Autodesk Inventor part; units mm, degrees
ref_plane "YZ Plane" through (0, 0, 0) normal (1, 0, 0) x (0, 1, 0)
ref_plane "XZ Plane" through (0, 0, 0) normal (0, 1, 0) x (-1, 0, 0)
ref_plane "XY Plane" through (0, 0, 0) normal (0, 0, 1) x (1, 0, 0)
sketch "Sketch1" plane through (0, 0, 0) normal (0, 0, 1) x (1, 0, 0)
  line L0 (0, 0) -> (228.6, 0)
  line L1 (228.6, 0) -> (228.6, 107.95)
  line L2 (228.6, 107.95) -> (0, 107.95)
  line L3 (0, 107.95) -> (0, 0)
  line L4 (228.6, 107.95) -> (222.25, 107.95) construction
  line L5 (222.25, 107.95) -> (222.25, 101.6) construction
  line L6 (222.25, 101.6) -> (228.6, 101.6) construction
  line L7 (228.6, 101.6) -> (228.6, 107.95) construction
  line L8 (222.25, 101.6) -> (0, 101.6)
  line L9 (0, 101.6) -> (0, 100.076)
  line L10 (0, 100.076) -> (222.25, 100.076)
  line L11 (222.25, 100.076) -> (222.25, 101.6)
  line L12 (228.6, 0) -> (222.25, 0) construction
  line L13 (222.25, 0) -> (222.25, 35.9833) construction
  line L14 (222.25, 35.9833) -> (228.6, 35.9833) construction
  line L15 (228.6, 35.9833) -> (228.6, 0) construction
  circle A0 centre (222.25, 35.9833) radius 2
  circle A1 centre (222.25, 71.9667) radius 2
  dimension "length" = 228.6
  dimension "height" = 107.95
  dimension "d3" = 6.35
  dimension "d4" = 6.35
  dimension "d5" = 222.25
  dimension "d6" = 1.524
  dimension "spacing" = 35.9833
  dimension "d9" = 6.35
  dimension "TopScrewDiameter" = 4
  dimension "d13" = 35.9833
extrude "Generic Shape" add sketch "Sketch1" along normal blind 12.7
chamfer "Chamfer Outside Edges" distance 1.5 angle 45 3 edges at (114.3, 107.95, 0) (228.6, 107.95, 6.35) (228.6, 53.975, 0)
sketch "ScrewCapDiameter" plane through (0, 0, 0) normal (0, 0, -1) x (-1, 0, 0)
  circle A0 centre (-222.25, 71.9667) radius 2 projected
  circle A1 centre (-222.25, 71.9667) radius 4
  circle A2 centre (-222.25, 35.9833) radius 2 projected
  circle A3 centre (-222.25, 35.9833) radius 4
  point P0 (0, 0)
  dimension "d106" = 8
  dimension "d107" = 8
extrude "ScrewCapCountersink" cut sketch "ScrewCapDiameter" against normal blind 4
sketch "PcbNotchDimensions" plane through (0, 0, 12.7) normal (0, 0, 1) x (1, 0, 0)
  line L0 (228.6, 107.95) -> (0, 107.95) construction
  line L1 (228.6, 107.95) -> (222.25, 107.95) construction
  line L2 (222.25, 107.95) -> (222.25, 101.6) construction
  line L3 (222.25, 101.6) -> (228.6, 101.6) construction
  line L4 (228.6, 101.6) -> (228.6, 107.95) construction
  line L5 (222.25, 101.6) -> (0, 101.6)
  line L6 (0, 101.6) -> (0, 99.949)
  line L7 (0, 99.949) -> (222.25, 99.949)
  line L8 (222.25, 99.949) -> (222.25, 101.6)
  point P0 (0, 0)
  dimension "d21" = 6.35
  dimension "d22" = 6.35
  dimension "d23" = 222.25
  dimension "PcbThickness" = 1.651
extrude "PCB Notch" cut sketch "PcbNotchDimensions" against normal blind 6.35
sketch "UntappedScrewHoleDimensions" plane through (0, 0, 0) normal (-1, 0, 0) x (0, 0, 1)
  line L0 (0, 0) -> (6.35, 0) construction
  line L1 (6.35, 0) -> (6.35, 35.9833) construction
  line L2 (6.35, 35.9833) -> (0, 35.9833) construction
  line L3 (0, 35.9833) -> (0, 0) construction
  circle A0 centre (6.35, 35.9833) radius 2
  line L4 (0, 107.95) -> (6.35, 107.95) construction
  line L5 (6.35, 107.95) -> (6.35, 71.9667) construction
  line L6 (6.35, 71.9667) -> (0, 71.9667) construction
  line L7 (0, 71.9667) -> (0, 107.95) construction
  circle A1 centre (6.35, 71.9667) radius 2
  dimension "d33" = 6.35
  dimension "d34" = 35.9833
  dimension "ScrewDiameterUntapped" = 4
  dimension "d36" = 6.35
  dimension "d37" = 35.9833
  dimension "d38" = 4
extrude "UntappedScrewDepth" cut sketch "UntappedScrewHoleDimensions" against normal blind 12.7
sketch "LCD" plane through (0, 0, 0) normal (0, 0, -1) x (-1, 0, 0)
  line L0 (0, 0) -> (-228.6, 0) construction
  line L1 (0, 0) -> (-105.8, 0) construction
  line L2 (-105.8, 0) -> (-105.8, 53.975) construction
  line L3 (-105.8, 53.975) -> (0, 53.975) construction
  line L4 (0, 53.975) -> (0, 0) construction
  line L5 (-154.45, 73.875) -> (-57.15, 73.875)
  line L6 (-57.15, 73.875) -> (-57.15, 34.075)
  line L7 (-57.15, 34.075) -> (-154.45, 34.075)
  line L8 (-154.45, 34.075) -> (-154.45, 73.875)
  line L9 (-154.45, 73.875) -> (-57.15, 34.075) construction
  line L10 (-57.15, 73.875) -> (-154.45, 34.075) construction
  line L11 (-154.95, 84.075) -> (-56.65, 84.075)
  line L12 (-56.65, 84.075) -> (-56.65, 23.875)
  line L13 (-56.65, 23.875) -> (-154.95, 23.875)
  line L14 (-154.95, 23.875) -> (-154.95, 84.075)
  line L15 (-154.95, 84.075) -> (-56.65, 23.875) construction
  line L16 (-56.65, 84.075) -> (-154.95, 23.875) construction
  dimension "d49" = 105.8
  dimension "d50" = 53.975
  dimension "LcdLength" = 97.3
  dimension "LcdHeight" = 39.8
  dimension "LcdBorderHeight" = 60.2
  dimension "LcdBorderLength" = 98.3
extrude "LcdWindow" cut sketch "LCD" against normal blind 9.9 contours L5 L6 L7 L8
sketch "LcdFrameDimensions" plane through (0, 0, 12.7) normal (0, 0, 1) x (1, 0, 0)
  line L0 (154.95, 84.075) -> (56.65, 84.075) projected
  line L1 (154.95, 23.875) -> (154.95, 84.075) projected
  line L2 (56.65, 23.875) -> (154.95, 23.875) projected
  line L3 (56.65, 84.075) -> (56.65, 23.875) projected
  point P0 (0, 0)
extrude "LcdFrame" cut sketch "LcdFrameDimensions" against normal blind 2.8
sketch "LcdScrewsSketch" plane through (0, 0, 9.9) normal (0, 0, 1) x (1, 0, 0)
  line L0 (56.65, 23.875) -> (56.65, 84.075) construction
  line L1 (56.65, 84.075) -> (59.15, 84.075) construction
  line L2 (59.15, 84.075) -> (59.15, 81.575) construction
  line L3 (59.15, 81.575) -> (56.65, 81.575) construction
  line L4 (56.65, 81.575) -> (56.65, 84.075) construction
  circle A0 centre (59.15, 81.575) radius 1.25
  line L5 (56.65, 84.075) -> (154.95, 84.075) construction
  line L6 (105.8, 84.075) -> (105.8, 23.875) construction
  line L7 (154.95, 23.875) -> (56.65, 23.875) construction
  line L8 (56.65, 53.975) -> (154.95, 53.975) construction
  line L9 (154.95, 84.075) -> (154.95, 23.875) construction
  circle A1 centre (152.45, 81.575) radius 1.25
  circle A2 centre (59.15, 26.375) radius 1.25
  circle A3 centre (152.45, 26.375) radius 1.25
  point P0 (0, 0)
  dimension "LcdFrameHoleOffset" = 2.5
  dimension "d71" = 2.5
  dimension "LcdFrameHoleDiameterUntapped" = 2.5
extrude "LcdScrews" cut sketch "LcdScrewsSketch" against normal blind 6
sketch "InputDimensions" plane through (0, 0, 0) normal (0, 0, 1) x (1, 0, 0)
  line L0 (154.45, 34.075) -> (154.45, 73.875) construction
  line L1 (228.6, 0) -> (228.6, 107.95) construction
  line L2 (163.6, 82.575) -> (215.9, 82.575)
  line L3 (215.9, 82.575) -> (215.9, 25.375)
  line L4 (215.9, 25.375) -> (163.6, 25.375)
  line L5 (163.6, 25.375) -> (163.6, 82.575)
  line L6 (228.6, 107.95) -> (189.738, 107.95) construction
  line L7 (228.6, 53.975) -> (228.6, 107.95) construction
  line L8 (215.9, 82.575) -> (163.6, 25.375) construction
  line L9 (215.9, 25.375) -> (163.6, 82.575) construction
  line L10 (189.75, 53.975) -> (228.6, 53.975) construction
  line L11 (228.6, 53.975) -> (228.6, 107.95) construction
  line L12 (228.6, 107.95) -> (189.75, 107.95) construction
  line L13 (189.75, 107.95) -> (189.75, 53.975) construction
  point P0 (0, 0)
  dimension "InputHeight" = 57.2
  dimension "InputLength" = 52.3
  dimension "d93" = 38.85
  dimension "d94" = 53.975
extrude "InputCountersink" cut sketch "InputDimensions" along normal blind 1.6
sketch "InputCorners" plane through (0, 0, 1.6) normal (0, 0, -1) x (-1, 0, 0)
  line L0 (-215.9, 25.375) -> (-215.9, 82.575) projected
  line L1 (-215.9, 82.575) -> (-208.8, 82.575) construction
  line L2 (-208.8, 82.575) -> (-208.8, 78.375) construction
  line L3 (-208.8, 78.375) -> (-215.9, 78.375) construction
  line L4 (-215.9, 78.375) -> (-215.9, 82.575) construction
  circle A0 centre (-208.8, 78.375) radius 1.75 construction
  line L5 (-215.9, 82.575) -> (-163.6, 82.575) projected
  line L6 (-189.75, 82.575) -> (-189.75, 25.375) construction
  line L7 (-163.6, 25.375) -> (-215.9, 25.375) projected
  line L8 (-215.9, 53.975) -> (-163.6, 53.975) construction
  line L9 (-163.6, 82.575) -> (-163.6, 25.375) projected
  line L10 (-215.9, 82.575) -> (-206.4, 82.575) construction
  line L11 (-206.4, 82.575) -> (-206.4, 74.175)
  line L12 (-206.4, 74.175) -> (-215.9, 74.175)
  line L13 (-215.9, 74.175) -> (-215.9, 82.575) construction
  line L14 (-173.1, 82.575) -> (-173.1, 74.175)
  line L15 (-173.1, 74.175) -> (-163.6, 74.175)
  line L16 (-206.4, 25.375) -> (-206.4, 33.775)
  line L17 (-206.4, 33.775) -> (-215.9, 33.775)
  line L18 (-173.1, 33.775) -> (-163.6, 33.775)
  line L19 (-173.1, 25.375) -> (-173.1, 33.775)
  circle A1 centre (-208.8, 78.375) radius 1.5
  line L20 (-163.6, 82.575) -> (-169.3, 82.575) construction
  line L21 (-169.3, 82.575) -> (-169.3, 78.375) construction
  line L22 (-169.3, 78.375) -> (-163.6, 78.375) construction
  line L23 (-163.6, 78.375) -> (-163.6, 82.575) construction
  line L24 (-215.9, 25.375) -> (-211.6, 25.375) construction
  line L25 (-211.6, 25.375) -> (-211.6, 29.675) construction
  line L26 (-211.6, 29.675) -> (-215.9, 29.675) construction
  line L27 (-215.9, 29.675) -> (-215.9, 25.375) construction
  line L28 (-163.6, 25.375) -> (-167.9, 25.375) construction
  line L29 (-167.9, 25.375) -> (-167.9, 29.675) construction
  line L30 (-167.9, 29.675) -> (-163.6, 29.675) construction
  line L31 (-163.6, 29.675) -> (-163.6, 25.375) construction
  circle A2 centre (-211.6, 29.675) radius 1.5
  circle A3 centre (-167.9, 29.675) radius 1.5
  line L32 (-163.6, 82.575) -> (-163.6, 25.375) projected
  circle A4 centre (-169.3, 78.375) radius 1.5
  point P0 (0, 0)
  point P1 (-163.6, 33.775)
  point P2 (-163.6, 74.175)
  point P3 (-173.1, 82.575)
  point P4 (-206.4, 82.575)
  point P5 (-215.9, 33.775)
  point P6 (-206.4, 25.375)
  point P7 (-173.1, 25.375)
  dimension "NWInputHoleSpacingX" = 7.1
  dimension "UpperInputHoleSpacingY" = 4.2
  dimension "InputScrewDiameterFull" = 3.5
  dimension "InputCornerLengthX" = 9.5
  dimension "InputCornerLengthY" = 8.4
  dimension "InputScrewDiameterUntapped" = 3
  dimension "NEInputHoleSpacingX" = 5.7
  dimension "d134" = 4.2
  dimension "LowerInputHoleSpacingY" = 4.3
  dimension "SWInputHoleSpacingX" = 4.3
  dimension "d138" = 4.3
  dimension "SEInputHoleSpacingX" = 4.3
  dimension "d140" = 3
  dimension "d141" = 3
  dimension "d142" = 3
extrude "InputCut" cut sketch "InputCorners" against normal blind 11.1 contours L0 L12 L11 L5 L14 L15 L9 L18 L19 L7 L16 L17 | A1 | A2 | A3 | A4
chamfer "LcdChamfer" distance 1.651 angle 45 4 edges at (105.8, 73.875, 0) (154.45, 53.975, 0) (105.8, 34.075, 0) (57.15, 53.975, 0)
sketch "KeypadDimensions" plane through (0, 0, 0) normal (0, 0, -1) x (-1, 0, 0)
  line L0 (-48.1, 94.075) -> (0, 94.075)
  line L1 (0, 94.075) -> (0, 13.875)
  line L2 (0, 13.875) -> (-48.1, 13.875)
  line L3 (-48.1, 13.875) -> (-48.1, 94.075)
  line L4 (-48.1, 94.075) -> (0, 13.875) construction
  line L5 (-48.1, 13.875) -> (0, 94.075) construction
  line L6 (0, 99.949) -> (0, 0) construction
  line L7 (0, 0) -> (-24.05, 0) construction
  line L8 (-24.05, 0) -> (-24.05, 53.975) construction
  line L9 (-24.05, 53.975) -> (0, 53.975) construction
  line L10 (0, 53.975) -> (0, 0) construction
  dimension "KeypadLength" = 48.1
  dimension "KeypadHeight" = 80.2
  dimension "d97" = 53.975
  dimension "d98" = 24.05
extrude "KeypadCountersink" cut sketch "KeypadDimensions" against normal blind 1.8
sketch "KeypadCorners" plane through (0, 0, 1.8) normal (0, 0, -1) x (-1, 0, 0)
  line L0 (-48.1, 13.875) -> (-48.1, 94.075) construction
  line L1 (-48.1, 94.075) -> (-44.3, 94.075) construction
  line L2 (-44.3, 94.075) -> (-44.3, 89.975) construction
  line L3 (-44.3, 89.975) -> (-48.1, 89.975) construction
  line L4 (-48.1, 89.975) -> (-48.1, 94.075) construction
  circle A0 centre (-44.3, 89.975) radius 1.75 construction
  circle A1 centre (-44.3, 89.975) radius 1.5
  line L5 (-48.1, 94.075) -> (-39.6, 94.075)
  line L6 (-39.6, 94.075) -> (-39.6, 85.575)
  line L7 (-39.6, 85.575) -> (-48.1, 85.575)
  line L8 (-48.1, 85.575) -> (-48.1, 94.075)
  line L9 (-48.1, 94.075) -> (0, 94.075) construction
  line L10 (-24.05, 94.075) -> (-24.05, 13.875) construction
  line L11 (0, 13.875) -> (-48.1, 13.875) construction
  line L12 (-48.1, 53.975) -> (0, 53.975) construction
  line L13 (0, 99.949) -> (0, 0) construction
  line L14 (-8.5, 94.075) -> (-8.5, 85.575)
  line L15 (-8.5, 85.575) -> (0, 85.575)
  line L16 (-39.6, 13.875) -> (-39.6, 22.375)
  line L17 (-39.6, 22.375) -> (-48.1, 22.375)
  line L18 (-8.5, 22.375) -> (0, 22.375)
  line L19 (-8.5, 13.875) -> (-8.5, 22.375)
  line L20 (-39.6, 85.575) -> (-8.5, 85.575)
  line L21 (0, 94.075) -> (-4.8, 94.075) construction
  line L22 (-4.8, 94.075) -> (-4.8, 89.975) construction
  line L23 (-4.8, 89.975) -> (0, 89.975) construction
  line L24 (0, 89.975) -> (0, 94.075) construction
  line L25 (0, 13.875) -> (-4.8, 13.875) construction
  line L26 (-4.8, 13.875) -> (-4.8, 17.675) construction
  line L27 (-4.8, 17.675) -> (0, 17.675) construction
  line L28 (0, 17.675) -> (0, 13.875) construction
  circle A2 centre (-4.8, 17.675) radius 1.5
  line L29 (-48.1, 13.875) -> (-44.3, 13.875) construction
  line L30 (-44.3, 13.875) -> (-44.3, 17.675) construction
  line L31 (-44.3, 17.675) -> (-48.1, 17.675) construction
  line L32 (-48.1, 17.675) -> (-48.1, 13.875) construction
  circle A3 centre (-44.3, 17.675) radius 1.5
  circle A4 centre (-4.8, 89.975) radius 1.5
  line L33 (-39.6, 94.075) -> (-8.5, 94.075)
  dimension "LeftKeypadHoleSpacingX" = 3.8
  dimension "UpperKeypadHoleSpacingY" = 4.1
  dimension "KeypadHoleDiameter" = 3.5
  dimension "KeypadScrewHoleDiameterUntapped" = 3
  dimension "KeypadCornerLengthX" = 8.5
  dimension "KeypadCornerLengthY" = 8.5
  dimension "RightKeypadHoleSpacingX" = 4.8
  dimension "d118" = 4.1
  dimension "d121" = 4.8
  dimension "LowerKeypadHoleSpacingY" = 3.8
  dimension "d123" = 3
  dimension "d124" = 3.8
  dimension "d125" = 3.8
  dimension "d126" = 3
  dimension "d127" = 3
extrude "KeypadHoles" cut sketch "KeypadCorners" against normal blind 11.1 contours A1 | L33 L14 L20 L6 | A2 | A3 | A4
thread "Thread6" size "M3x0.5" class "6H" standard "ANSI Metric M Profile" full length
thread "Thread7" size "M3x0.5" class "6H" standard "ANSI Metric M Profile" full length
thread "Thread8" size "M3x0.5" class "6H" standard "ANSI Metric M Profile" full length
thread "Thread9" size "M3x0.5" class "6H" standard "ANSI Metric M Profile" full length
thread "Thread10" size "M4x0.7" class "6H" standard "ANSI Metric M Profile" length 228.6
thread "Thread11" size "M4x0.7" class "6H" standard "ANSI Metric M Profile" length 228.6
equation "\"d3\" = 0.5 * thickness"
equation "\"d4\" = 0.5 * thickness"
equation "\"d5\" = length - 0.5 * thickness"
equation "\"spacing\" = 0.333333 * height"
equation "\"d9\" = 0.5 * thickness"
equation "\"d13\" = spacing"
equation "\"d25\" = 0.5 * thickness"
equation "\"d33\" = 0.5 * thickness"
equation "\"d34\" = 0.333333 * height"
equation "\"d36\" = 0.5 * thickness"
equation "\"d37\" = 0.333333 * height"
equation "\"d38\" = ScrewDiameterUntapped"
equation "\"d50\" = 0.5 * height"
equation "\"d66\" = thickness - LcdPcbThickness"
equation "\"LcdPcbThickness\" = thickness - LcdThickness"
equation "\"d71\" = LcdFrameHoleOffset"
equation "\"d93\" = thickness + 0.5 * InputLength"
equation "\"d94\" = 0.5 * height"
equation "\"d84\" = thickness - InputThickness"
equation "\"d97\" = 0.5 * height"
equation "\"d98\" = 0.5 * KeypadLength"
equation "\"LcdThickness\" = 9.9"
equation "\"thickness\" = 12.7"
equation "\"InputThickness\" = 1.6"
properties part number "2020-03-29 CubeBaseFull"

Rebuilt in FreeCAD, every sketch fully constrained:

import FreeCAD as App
import Part
import Sketcher
from FreeCAD import Vector
Q = App.Units.Quantity


def edges_at(feature, points):
    """Names of the edges that pass closest to the given points."""
    edges = feature.Shape.Edges
    near = lambda p: min(range(len(edges)), key=lambda i: edges[i].distToShape(Part.Vertex(*p))[0])
    return sorted({f"Edge{near(p) + 1}" for p in points})


def add_polygon(sketch, points):
    """Adds a closed chain of lines whose ends are joined by coincident constraints."""
    first, n = sketch.GeometryCount, len(points)
    for a, b in zip(points, points[1:] + points[:1]):
        sketch.addGeometry(Part.LineSegment(App.Vector(*a, 0), App.Vector(*b, 0)), False)
    for i in range(n):
        sketch.addConstraint(Sketcher.Constraint("Coincident", first + i, 2, first + (i + 1) % n, 1))

doc = App.newDocument("Part")
params = doc.addObject("Spreadsheet::Sheet", "Params")
for row, (alias, value) in enumerate([
    ("sketch1_diameter", "4 mm"),
    ("sketch1_width", "228.6 mm"),
    ("sketch1_height", "107.95 mm"),
    ("pad1_length", "12.7 mm"),
    ("chamfer_size", "1.5 mm"),
    ("sketch2_diameter", "8 mm"),
    ("sketch2_diameter2", "4 mm"),
    ("pocket1_length", "4 mm"),
    ("sketch3_width", "222.25 mm"),
    ("pocket2_length", "6.35 mm"),
    ("sketch4_diameter", "4 mm"),
    ("pocket3_length", "12.7 mm"),
    ("sketch5_width", "97.3 mm"),
    ("sketch5_height", "39.8 mm"),
    ("pocket4_length", "9.9 mm"),
    ("sketch6_width", "98.3 mm"),
    ("sketch6_height", "60.2 mm"),
    ("pocket5_length", "2.8 mm"),
    ("sketch7_diameter", "2.5 mm"),
    ("pocket6_length", "6 mm"),
    ("sketch8_width", "52.3 mm"),
    ("sketch8_height", "57.2 mm"),
    ("pocket7_length", "1.6 mm"),
    ("sketch9_diameter", "3 mm"),
    ("sketch9_width", "9.5 mm"),
    ("sketch9_height", "8.4 mm"),
    ("sketch9_width2", "33.3 mm"),
    ("sketch9_height2", "40.4 mm"),
    ("pocket8_length", "11.1 mm"),
    ("chamfer2_size", "1.651 mm"),
    ("sketch10_width", "48.1 mm"),
    ("sketch10_height", "80.2 mm"),
    ("pocket9_length", "1.8 mm"),
    ("sketch11_diameter", "3 mm"),
    ("sketch11_height", "8.5 mm"),
    ("sketch11_width", "31.1 mm"),
    ("pocket10_length", "11.1 mm"),
], start=1):
    params.set(f"A{row}", alias)
    params.set(f"B{row}", "=" + value)
    params.setAlias(f"B{row}", alias)

body = doc.addObject("PartDesign::Body", "Body")

# Sketch on XY plane
sketch1 = body.newObject("Sketcher::SketchObject", "Sketch")
sketch1.AttachmentSupport = (doc.getObject("XY_Plane"), [""])
sketch1.MapMode = "FlatFace"
add_polygon(sketch1, [(0, 0), (228.6, 0), (228.6, 108), (0, 108)])  # lines 0-3
sketch1.addGeometry(Part.Circle(Vector(222.2, 36, 0), Vector(0, 0, 1), 2), False)  # 4
sketch1.addGeometry(Part.Circle(Vector(222.2, 72, 0), Vector(0, 0, 1), 2), False)  # 5
sketch1.addConstraint(Sketcher.Constraint("Horizontal", 0))
sketch1.addConstraint(Sketcher.Constraint("Vertical", 1))
sketch1.addConstraint(Sketcher.Constraint("Horizontal", 2))
sketch1.addConstraint(Sketcher.Constraint("Vertical", 3))
sketch1.addConstraint(Sketcher.Constraint("Coincident", 3, 2, -1, 1))
sketch1.addConstraint(Sketcher.Constraint("Equal", 4, 5))
sketch1.addConstraint(Sketcher.Constraint("Vertical", 4, 3, 5, 3))
sketch1.addConstraint(Sketcher.Constraint("Diameter", 4, Q("4 mm")))
sketch1.addConstraint(Sketcher.Constraint("DistanceX", 0, 1, 0, 2, Q("228.6 mm")))
sketch1.addConstraint(Sketcher.Constraint("DistanceY", 1, 1, 1, 2, Q("107.95 mm")))
sketch1.addConstraint(Sketcher.Constraint("DistanceX", -1, 1, 4, 3, Q("222.25 mm")))
sketch1.addConstraint(Sketcher.Constraint("DistanceY", -1, 1, 4, 3, Q("35.9833 mm")))
sketch1.addConstraint(Sketcher.Constraint("DistanceY", 4, 3, 5, 3, Q("35.9834 mm")))
sketch1.setExpression("Constraints[11]", "Params.sketch1_diameter")
sketch1.setExpression("Constraints[12]", "Params.sketch1_width")
sketch1.setExpression("Constraints[13]", "Params.sketch1_height")
pad1 = body.newObject("PartDesign::Pad", "Pad")
pad1.Profile = sketch1
pad1.setExpression("Length", "Params.pad1_length")
doc.recompute()

chamfer = body.newObject("PartDesign::Chamfer", "Chamfer")
chamfer.Base = (pad1, edges_at(pad1, [(114.3, 107.95, 0), (228.6, 107.95, 6.35), (228.6, 53.975, 0)]))
chamfer.setExpression("Size", "Params.chamfer_size")

# Sketch on XY plane
sketch2 = body.newObject("Sketcher::SketchObject", "Sketch001")
sketch2.AttachmentSupport = (doc.getObject("XY_Plane"), [""])
sketch2.MapMode = "FlatFace"
sketch2.addGeometry(Part.Circle(Vector(222.2, 72, 0), Vector(0, 0, 1), 4), False)
sketch2.addGeometry(Part.Circle(Vector(222.2, 72, 0), Vector(0, 0, 1), 2), False)
sketch2.addGeometry(Part.Circle(Vector(222.2, 36, 0), Vector(0, 0, 1), 4), False)
sketch2.addGeometry(Part.Circle(Vector(222.2, 36, 0), Vector(0, 0, 1), 2), False)
sketch2.addConstraint(Sketcher.Constraint("Coincident", 1, 3, 0, 3))
sketch2.addConstraint(Sketcher.Constraint("Coincident", 3, 3, 2, 3))
sketch2.addConstraint(Sketcher.Constraint("Equal", 0, 2))
sketch2.addConstraint(Sketcher.Constraint("Equal", 1, 3))
sketch2.addConstraint(Sketcher.Constraint("Vertical", 1, 3, 2, 3))
sketch2.addConstraint(Sketcher.Constraint("Diameter", 0, Q("8 mm")))
sketch2.addConstraint(Sketcher.Constraint("Diameter", 1, Q("4 mm")))
sketch2.addConstraint(Sketcher.Constraint("DistanceX", -1, 1, 0, 3, Q("222.25 mm")))
sketch2.addConstraint(Sketcher.Constraint("DistanceY", -1, 1, 0, 3, Q("71.9667 mm")))
sketch2.addConstraint(Sketcher.Constraint("DistanceY", -1, 1, 2, 3, Q("35.9833 mm")))
sketch2.setExpression("Constraints[5]", "Params.sketch2_diameter")
sketch2.setExpression("Constraints[6]", "Params.sketch2_diameter2")
pocket1 = body.newObject("PartDesign::Pocket", "Pocket")
pocket1.Profile = sketch2
pocket1.setExpression("Length", "Params.pocket1_length")
pocket1.Reversed = True

# Sketch on XY plane
sketch3 = body.newObject("Sketcher::SketchObject", "Sketch002")
sketch3.AttachmentSupport = (doc.getObject("XY_Plane"), [""])
sketch3.MapMode = "FlatFace"
sketch3.AttachmentOffset = App.Placement(Vector(0, 0, 12.7), App.Rotation())
add_polygon(sketch3, [(222.2, 99.9), (222.2, 101.6), (0, 101.6), (0, 99.9)])  # lines 0-3
sketch3.addConstraint(Sketcher.Constraint("Vertical", 0))
sketch3.addConstraint(Sketcher.Constraint("Horizontal", 1))
sketch3.addConstraint(Sketcher.Constraint("Vertical", 2))
sketch3.addConstraint(Sketcher.Constraint("Horizontal", 3))
sketch3.addConstraint(Sketcher.Constraint("PointOnObject", 1, 2, -2))
sketch3.addConstraint(Sketcher.Constraint("DistanceX", 1, 2, 1, 1, Q("222.25 mm")))
sketch3.addConstraint(Sketcher.Constraint("DistanceY", 0, 1, 0, 2, Q("1.651 mm")))
sketch3.addConstraint(Sketcher.Constraint("DistanceY", -1, 1, 0, 2, Q("101.6 mm")))
sketch3.setExpression("Constraints[9]", "Params.sketch3_width")
pocket2 = body.newObject("PartDesign::Pocket", "Pocket001")
pocket2.Profile = sketch3
pocket2.setExpression("Length", "Params.pocket2_length")

# Sketch on YZ plane
sketch4 = body.newObject("Sketcher::SketchObject", "Sketch003")
sketch4.AttachmentSupport = (doc.getObject("YZ_Plane"), [""])
sketch4.MapMode = "FlatFace"
sketch4.addGeometry(Part.Circle(Vector(36, 6.3, 0), Vector(0, 0, 1), 2), False)
sketch4.addGeometry(Part.Circle(Vector(72, 6.3, 0), Vector(0, 0, 1), 2), False)
sketch4.addConstraint(Sketcher.Constraint("Equal", 0, 1))
sketch4.addConstraint(Sketcher.Constraint("Horizontal", 0, 3, 1, 3))
sketch4.addConstraint(Sketcher.Constraint("Diameter", 0, Q("4 mm")))
sketch4.addConstraint(Sketcher.Constraint("DistanceY", -1, 1, 0, 3, Q("6.35 mm")))
sketch4.addConstraint(Sketcher.Constraint("DistanceX", -1, 1, 0, 3, Q("35.9833 mm")))
sketch4.addConstraint(Sketcher.Constraint("DistanceX", 0, 3, 1, 3, Q("35.9834 mm")))
sketch4.setExpression("Constraints[2]", "Params.sketch4_diameter")
pocket3 = body.newObject("PartDesign::Pocket", "Pocket002")
pocket3.Profile = sketch4
pocket3.setExpression("Length", "Params.pocket3_length")
pocket3.Reversed = True

# Sketch on XY plane
sketch5 = body.newObject("Sketcher::SketchObject", "Sketch004")
sketch5.AttachmentSupport = (doc.getObject("XY_Plane"), [""])
sketch5.MapMode = "FlatFace"
add_polygon(sketch5, [(57, 74), (154, 74), (154, 34), (57, 34)])  # lines 0-3
sketch5.addConstraint(Sketcher.Constraint("Horizontal", 0))
sketch5.addConstraint(Sketcher.Constraint("Vertical", 1))
sketch5.addConstraint(Sketcher.Constraint("Horizontal", 2))
sketch5.addConstraint(Sketcher.Constraint("Vertical", 3))
sketch5.addConstraint(Sketcher.Constraint("DistanceX", 0, 1, 0, 2, Q("97.3 mm")))
sketch5.addConstraint(Sketcher.Constraint("DistanceY", 1, 2, 1, 1, Q("39.8 mm")))
sketch5.addConstraint(Sketcher.Constraint("DistanceX", -1, 1, 0, 2, Q("154.45 mm")))
sketch5.addConstraint(Sketcher.Constraint("DistanceY", -1, 1, 0, 2, Q("73.875 mm")))
sketch5.setExpression("Constraints[8]", "Params.sketch5_width")
sketch5.setExpression("Constraints[9]", "Params.sketch5_height")
pocket4 = body.newObject("PartDesign::Pocket", "Pocket003")
pocket4.Profile = sketch5
pocket4.setExpression("Length", "Params.pocket4_length")
pocket4.Reversed = True

# Sketch on XY plane
sketch6 = body.newObject("Sketcher::SketchObject", "Sketch005")
sketch6.AttachmentSupport = (doc.getObject("XY_Plane"), [""])
sketch6.MapMode = "FlatFace"
sketch6.AttachmentOffset = App.Placement(Vector(0, 0, 12.7), App.Rotation())
add_polygon(sketch6, [(155, 24), (155, 84), (57, 84), (57, 24)])  # lines 0-3
sketch6.addConstraint(Sketcher.Constraint("Vertical", 0))
sketch6.addConstraint(Sketcher.Constraint("Horizontal", 1))
sketch6.addConstraint(Sketcher.Constraint("Vertical", 2))
sketch6.addConstraint(Sketcher.Constraint("Horizontal", 3))
sketch6.addConstraint(Sketcher.Constraint("DistanceX", 1, 2, 1, 1, Q("98.3 mm")))
sketch6.addConstraint(Sketcher.Constraint("DistanceY", 0, 1, 0, 2, Q("60.2 mm")))
sketch6.addConstraint(Sketcher.Constraint("DistanceX", -1, 1, 0, 2, Q("154.95 mm")))
sketch6.addConstraint(Sketcher.Constraint("DistanceY", -1, 1, 0, 2, Q("84.075 mm")))
sketch6.setExpression("Constraints[8]", "Params.sketch6_width")
sketch6.setExpression("Constraints[9]", "Params.sketch6_height")
pocket5 = body.newObject("PartDesign::Pocket", "Pocket004")
pocket5.Profile = sketch6
pocket5.setExpression("Length", "Params.pocket5_length")

# Sketch on XY plane
sketch7 = body.newObject("Sketcher::SketchObject", "Sketch006")
sketch7.AttachmentSupport = (doc.getObject("XY_Plane"), [""])
sketch7.MapMode = "FlatFace"
sketch7.AttachmentOffset = App.Placement(Vector(0, 0, 9.9), App.Rotation())
sketch7.addGeometry(Part.Circle(Vector(59.1, 81.6, 0), Vector(0, 0, 1), 1.2), False)
sketch7.addGeometry(Part.Circle(Vector(152.4, 81.6, 0), Vector(0, 0, 1), 1.2), False)
sketch7.addGeometry(Part.Circle(Vector(59.1, 26.4, 0), Vector(0, 0, 1), 1.2), False)
sketch7.addGeometry(Part.Circle(Vector(152.4, 26.4, 0), Vector(0, 0, 1), 1.2), False)
sketch7.addConstraint(Sketcher.Constraint("Equal", 0, 1))
sketch7.addConstraint(Sketcher.Constraint("Equal", 1, 2))
sketch7.addConstraint(Sketcher.Constraint("Equal", 2, 3))
sketch7.addConstraint(Sketcher.Constraint("Horizontal", 0, 3, 1, 3))
sketch7.addConstraint(Sketcher.Constraint("Horizontal", 2, 3, 3, 3))
sketch7.addConstraint(Sketcher.Constraint("Vertical", 0, 3, 2, 3))
sketch7.addConstraint(Sketcher.Constraint("Vertical", 1, 3, 3, 3))
sketch7.addConstraint(Sketcher.Constraint("Diameter", 0, Q("2.5 mm")))
sketch7.addConstraint(Sketcher.Constraint("DistanceX", 0, 3, 1, 3, Q("93.3 mm")))
sketch7.addConstraint(Sketcher.Constraint("DistanceY", 2, 3, 0, 3, Q("55.2 mm")))
sketch7.addConstraint(Sketcher.Constraint("DistanceX", -1, 1, 0, 3, Q("59.15 mm")))
sketch7.addConstraint(Sketcher.Constraint("DistanceY", -1, 1, 0, 3, Q("81.575 mm")))
sketch7.setExpression("Constraints[7]", "Params.sketch7_diameter")
pocket6 = body.newObject("PartDesign::Pocket", "Pocket005")
pocket6.Profile = sketch7
pocket6.setExpression("Length", "Params.pocket6_length")

# Sketch on XY plane
sketch8 = body.newObject("Sketcher::SketchObject", "Sketch007")
sketch8.AttachmentSupport = (doc.getObject("XY_Plane"), [""])
sketch8.MapMode = "FlatFace"
add_polygon(sketch8, [(216, 83), (164, 83), (164, 25), (216, 25)])  # lines 0-3
sketch8.addConstraint(Sketcher.Constraint("Horizontal", 0))
sketch8.addConstraint(Sketcher.Constraint("Vertical", 1))
sketch8.addConstraint(Sketcher.Constraint("Horizontal", 2))
sketch8.addConstraint(Sketcher.Constraint("Vertical", 3))
sketch8.addConstraint(Sketcher.Constraint("DistanceX", 0, 2, 0, 1, Q("52.3 mm")))
sketch8.addConstraint(Sketcher.Constraint("DistanceY", 1, 2, 1, 1, Q("57.2 mm")))
sketch8.addConstraint(Sketcher.Constraint("DistanceX", -1, 1, 0, 2, Q("163.6 mm")))
sketch8.addConstraint(Sketcher.Constraint("DistanceY", -1, 1, 0, 2, Q("82.575 mm")))
sketch8.setExpression("Constraints[8]", "Params.sketch8_width")
sketch8.setExpression("Constraints[9]", "Params.sketch8_height")
pocket7 = body.newObject("PartDesign::Pocket", "Pocket006")
pocket7.Profile = sketch8
pocket7.setExpression("Length", "Params.pocket7_length")
pocket7.Reversed = True

# Sketch on XY plane
sketch9 = body.newObject("Sketcher::SketchObject", "Sketch008")
sketch9.AttachmentSupport = (doc.getObject("XY_Plane"), [""])
sketch9.MapMode = "FlatFace"
sketch9.AttachmentOffset = App.Placement(Vector(0, 0, 1.6), App.Rotation())
add_polygon(sketch9, [(215.9, 74.2), (215.9, 33.8), (206.4, 33.8), (206.4, 25.4), (173.1, 25.4), (173.1, 33.8), (163.6, 33.8), (163.6, 74.2), (173.1, 74.2), (173.1, 82.6), (206.4, 82.6), (206.4, 74.2)])  # lines 0-11
sketch9.addGeometry(Part.Circle(Vector(208.8, 78.4, 0), Vector(0, 0, 1), 1.5), False)  # 12
sketch9.addGeometry(Part.Circle(Vector(211.6, 29.7, 0), Vector(0, 0, 1), 1.5), False)  # 13
sketch9.addGeometry(Part.Circle(Vector(167.9, 29.7, 0), Vector(0, 0, 1), 1.5), False)  # 14
sketch9.addGeometry(Part.Circle(Vector(169.3, 78.4, 0), Vector(0, 0, 1), 1.5), False)  # 15
sketch9.addConstraint(Sketcher.Constraint("Vertical", 0))
sketch9.addConstraint(Sketcher.Constraint("Horizontal", 1))
sketch9.addConstraint(Sketcher.Constraint("Vertical", 2))
sketch9.addConstraint(Sketcher.Constraint("Horizontal", 3))
sketch9.addConstraint(Sketcher.Constraint("Vertical", 4))
sketch9.addConstraint(Sketcher.Constraint("Horizontal", 5))
sketch9.addConstraint(Sketcher.Constraint("Vertical", 6))
sketch9.addConstraint(Sketcher.Constraint("Horizontal", 7))
sketch9.addConstraint(Sketcher.Constraint("Vertical", 8))
sketch9.addConstraint(Sketcher.Constraint("Horizontal", 9))
sketch9.addConstraint(Sketcher.Constraint("Vertical", 10))
sketch9.addConstraint(Sketcher.Constraint("Horizontal", 11))
sketch9.addConstraint(Sketcher.Constraint("Equal", 12, 13))
sketch9.addConstraint(Sketcher.Constraint("Equal", 13, 14))
sketch9.addConstraint(Sketcher.Constraint("Equal", 14, 15))
sketch9.addConstraint(Sketcher.Constraint("Horizontal", 13, 3, 14, 3))
sketch9.addConstraint(Sketcher.Constraint("Horizontal", 12, 3, 15, 3))
sketch9.addConstraint(Sketcher.Constraint("Horizontal", 1, 2, 4, 2))
sketch9.addConstraint(Sketcher.Constraint("Horizontal", 7, 2, 10, 2))
sketch9.addConstraint(Sketcher.Constraint("Vertical", 4, 2, 7, 2))
sketch9.addConstraint(Sketcher.Constraint("Vertical", 2, 2, 9, 2))
sketch9.addConstraint(Sketcher.Constraint("Equal", 1, 5))
sketch9.addConstraint(Sketcher.Constraint("Equal", 4, 8))
sketch9.addConstraint(Sketcher.Constraint("Diameter", 12, Q("3 mm")))
sketch9.addConstraint(Sketcher.Constraint("DistanceX", 1, 2, 1, 1, Q("9.5 mm")))
sketch9.addConstraint(Sketcher.Constraint("DistanceY", 2, 2, 2, 1, Q("8.4 mm")))
sketch9.addConstraint(Sketcher.Constraint("DistanceX", 13, 3, 0, 2, Q("4.3 mm")))
sketch9.addConstraint(Sketcher.Constraint("DistanceX", 12, 3, 0, 2, Q("7.1 mm")))
sketch9.addConstraint(Sketcher.Constraint("DistanceY", 2, 2, 13, 3, Q("4.3 mm")))
sketch9.addConstraint(Sketcher.Constraint("DistanceX", 5, 2, 14, 3, Q("4.3 mm")))
sketch9.addConstraint(Sketcher.Constraint("DistanceX", 6, 2, 15, 3, Q("5.7 mm")))
sketch9.addConstraint(Sketcher.Constraint("DistanceY", 6, 2, 15, 3, Q("4.2 mm")))
sketch9.addConstraint(Sketcher.Constraint("DistanceX", 3, 2, 3, 1, Q("33.3 mm")))
sketch9.addConstraint(Sketcher.Constraint("DistanceY", 0, 2, 0, 1, Q("40.4 mm")))
sketch9.addConstraint(Sketcher.Constraint("DistanceX", -1, 1, 12, 3, Q("208.8 mm")))
sketch9.addConstraint(Sketcher.Constraint("DistanceY", -1, 1, 12, 3, Q("78.375 mm")))
sketch9.setExpression("Constraints[35]", "Params.sketch9_diameter")
sketch9.setExpression("Constraints[36]", "Params.sketch9_width")
sketch9.setExpression("Constraints[37]", "Params.sketch9_height")
sketch9.setExpression("Constraints[44]", "Params.sketch9_width2")
sketch9.setExpression("Constraints[45]", "Params.sketch9_height2")
pocket8 = body.newObject("PartDesign::Pocket", "Pocket007")
pocket8.Profile = sketch9
pocket8.setExpression("Length", "Params.pocket8_length")
pocket8.Reversed = True
doc.recompute()

chamfer2 = body.newObject("PartDesign::Chamfer", "Chamfer001")
chamfer2.Base = (pocket8, edges_at(pocket8, [
    (105.8, 73.875, 0),
    (154.45, 53.975, 0),
    (105.8, 34.075, 0),
    (57.15, 53.975, 0),
]))
chamfer2.setExpression("Size", "Params.chamfer2_size")

# Sketch on XY plane
sketch10 = body.newObject("Sketcher::SketchObject", "Sketch009")
sketch10.AttachmentSupport = (doc.getObject("XY_Plane"), [""])
sketch10.MapMode = "FlatFace"
add_polygon(sketch10, [(0, 94), (48, 94), (48, 14), (0, 14)])  # lines 0-3
sketch10.addConstraint(Sketcher.Constraint("Horizontal", 0))
sketch10.addConstraint(Sketcher.Constraint("Vertical", 1))
sketch10.addConstraint(Sketcher.Constraint("Horizontal", 2))
sketch10.addConstraint(Sketcher.Constraint("Vertical", 3))
sketch10.addConstraint(Sketcher.Constraint("PointOnObject", 2, 2, -2))
sketch10.addConstraint(Sketcher.Constraint("DistanceX", 0, 1, 0, 2, Q("48.1 mm")))
sketch10.addConstraint(Sketcher.Constraint("DistanceY", 1, 2, 1, 1, Q("80.2 mm")))
sketch10.addConstraint(Sketcher.Constraint("DistanceY", -1, 1, 0, 2, Q("94.075 mm")))
sketch10.setExpression("Constraints[9]", "Params.sketch10_width")
sketch10.setExpression("Constraints[10]", "Params.sketch10_height")
pocket9 = body.newObject("PartDesign::Pocket", "Pocket008")
pocket9.Profile = sketch10
pocket9.setExpression("Length", "Params.pocket9_length")
pocket9.Reversed = True

# Sketch on XY plane
sketch11 = body.newObject("Sketcher::SketchObject", "Sketch010")
sketch11.AttachmentSupport = (doc.getObject("XY_Plane"), [""])
sketch11.MapMode = "FlatFace"
sketch11.AttachmentOffset = App.Placement(Vector(0, 0, 1.8), App.Rotation())
sketch11.addGeometry(Part.Circle(Vector(44.3, 90, 0), Vector(0, 0, 1), 1.5), False)  # 0
add_polygon(sketch11, [(8.5, 94.1), (39.6, 94.1), (39.6, 85.6), (8.5, 85.6)])  # lines 1-4
sketch11.addGeometry(Part.Circle(Vector(4.8, 17.7, 0), Vector(0, 0, 1), 1.5), False)  # 5
sketch11.addGeometry(Part.Circle(Vector(44.3, 17.7, 0), Vector(0, 0, 1), 1.5), False)  # 6
sketch11.addGeometry(Part.Circle(Vector(4.8, 90, 0), Vector(0, 0, 1), 1.5), False)  # 7
sketch11.addConstraint(Sketcher.Constraint("Horizontal", 1))
sketch11.addConstraint(Sketcher.Constraint("Vertical", 2))
sketch11.addConstraint(Sketcher.Constraint("Horizontal", 3))
sketch11.addConstraint(Sketcher.Constraint("Vertical", 4))
sketch11.addConstraint(Sketcher.Constraint("Equal", 0, 5))
sketch11.addConstraint(Sketcher.Constraint("Equal", 5, 6))
sketch11.addConstraint(Sketcher.Constraint("Equal", 6, 7))
sketch11.addConstraint(Sketcher.Constraint("Horizontal", 5, 3, 6, 3))
sketch11.addConstraint(Sketcher.Constraint("Horizontal", 0, 3, 7, 3))
sketch11.addConstraint(Sketcher.Constraint("Vertical", 0, 3, 6, 3))
sketch11.addConstraint(Sketcher.Constraint("Vertical", 5, 3, 7, 3))
sketch11.addConstraint(Sketcher.Constraint("Diameter", 0, Q("3 mm")))
sketch11.addConstraint(Sketcher.Constraint("DistanceY", 2, 2, 2, 1, Q("8.5 mm")))
sketch11.addConstraint(Sketcher.Constraint("DistanceX", -1, 1, 5, 3, Q("4.8 mm")))
sketch11.addConstraint(Sketcher.Constraint("DistanceX", -1, 1, 3, 2, Q("8.5 mm")))
sketch11.addConstraint(Sketcher.Constraint("DistanceY", 0, 3, 1, 2, Q("4.1 mm")))
sketch11.addConstraint(Sketcher.Constraint("DistanceX", 1, 1, 1, 2, Q("31.1 mm")))
sketch11.addConstraint(Sketcher.Constraint("DistanceX", -1, 1, 0, 3, Q("44.3 mm")))
sketch11.addConstraint(Sketcher.Constraint("DistanceY", 5, 3, 0, 3, Q("72.3 mm")))
sketch11.addConstraint(Sketcher.Constraint("DistanceY", -1, 1, 0, 3, Q("89.975 mm")))
sketch11.setExpression("Constraints[15]", "Params.sketch11_diameter")
sketch11.setExpression("Constraints[16]", "Params.sketch11_height")
sketch11.setExpression("Constraints[20]", "Params.sketch11_width")
pocket10 = body.newObject("PartDesign::Pocket", "Pocket009")
pocket10.Profile = sketch11
pocket10.setExpression("Length", "Params.pocket10_length")
pocket10.Reversed = True

doc.recompute()
